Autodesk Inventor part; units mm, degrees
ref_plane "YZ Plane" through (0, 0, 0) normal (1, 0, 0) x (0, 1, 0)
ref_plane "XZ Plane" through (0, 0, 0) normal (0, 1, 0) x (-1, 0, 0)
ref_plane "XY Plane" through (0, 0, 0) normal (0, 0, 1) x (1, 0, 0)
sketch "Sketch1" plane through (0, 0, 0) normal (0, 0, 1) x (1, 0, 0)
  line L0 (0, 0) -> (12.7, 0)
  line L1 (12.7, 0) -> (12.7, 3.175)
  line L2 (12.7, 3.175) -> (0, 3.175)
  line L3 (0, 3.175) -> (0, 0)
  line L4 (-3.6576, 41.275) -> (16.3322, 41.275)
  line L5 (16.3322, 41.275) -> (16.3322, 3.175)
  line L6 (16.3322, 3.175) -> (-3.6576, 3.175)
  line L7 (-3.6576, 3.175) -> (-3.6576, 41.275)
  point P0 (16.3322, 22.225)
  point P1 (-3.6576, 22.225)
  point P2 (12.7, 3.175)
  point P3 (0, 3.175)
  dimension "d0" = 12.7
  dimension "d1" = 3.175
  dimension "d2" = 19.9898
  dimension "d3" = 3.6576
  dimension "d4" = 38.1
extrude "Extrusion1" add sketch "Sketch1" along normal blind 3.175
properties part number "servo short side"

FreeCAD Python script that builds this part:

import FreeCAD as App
import Part
import Sketcher

V = App.Vector
Q = App.Units.Quantity

doc = App.newDocument("Part")
body = doc.addObject("PartDesign::Body", "Body")

# Sketch on XY plane
sketch1 = body.newObject("Sketcher::SketchObject", "Sketch")
sketch1.AttachmentSupport = (doc.getObject("XY_Plane"), [""])
sketch1.MapMode = "FlatFace"
sketch1.addGeometry(Part.LineSegment(V(0, 3.175, 0), V(0, 0, 0)), False)
sketch1.addGeometry(Part.LineSegment(V(0, 0, 0), V(12.7, 0, 0)), False)
sketch1.addGeometry(Part.LineSegment(V(12.7, 0, 0), V(12.7, 3.175, 0)), False)
sketch1.addGeometry(Part.LineSegment(V(12.7, 3.175, 0), V(16.3322, 3.175, 0)), False)
sketch1.addGeometry(Part.LineSegment(V(16.3322, 3.175, 0), V(16.3322, 41.275, 0)), False)
sketch1.addGeometry(Part.LineSegment(V(16.3322, 41.275, 0), V(-3.6576, 41.275, 0)), False)
sketch1.addGeometry(Part.LineSegment(V(-3.6576, 41.275, 0), V(-3.6576, 3.175, 0)), False)
sketch1.addGeometry(Part.LineSegment(V(-3.6576, 3.175, 0), V(0, 3.175, 0)), False)
sketch1.addConstraint(Sketcher.Constraint("Coincident", 0, 2, 1, 1))
sketch1.addConstraint(Sketcher.Constraint("Coincident", 1, 2, 2, 1))
sketch1.addConstraint(Sketcher.Constraint("Coincident", 2, 2, 3, 1))
sketch1.addConstraint(Sketcher.Constraint("Coincident", 3, 2, 4, 1))
sketch1.addConstraint(Sketcher.Constraint("Coincident", 4, 2, 5, 1))
sketch1.addConstraint(Sketcher.Constraint("Coincident", 5, 2, 6, 1))
sketch1.addConstraint(Sketcher.Constraint("Coincident", 6, 2, 7, 1))
sketch1.addConstraint(Sketcher.Constraint("Coincident", 7, 2, 0, 1))
sketch1.addConstraint(Sketcher.Constraint("Vertical", 0))
sketch1.addConstraint(Sketcher.Constraint("Horizontal", 1))
sketch1.addConstraint(Sketcher.Constraint("Vertical", 2))
sketch1.addConstraint(Sketcher.Constraint("Horizontal", 3))
sketch1.addConstraint(Sketcher.Constraint("Vertical", 4))
sketch1.addConstraint(Sketcher.Constraint("Horizontal", 5))
sketch1.addConstraint(Sketcher.Constraint("Vertical", 6))
sketch1.addConstraint(Sketcher.Constraint("Horizontal", 7))
sketch1.addConstraint(Sketcher.Constraint("Coincident", 0, 2, -1, 1))
sketch1.addConstraint(Sketcher.Constraint("Horizontal", 3, 2, 6, 2))
sketch1.addConstraint(Sketcher.Constraint("DistanceX", 1, 1, 1, 2, Q("0.5 in")))
sketch1.addConstraint(Sketcher.Constraint("DistanceY", 4, 1, 4, 2, Q("1.5 in")))
sketch1.addConstraint(Sketcher.Constraint("DistanceX", 5, 2, 5, 1, Q("0.787 in")))
sketch1.addConstraint(Sketcher.Constraint("DistanceX", 7, 1, 7, 2, Q("0.144 in")))
sketch1.addConstraint(Sketcher.Constraint("DistanceY", 0, 2, 0, 1, Q("0.125 in")))
pad1 = body.newObject("PartDesign::Pad", "Pad")
pad1.Profile = sketch1
pad1.Length = Q("0.125 in")

doc.recompute()
